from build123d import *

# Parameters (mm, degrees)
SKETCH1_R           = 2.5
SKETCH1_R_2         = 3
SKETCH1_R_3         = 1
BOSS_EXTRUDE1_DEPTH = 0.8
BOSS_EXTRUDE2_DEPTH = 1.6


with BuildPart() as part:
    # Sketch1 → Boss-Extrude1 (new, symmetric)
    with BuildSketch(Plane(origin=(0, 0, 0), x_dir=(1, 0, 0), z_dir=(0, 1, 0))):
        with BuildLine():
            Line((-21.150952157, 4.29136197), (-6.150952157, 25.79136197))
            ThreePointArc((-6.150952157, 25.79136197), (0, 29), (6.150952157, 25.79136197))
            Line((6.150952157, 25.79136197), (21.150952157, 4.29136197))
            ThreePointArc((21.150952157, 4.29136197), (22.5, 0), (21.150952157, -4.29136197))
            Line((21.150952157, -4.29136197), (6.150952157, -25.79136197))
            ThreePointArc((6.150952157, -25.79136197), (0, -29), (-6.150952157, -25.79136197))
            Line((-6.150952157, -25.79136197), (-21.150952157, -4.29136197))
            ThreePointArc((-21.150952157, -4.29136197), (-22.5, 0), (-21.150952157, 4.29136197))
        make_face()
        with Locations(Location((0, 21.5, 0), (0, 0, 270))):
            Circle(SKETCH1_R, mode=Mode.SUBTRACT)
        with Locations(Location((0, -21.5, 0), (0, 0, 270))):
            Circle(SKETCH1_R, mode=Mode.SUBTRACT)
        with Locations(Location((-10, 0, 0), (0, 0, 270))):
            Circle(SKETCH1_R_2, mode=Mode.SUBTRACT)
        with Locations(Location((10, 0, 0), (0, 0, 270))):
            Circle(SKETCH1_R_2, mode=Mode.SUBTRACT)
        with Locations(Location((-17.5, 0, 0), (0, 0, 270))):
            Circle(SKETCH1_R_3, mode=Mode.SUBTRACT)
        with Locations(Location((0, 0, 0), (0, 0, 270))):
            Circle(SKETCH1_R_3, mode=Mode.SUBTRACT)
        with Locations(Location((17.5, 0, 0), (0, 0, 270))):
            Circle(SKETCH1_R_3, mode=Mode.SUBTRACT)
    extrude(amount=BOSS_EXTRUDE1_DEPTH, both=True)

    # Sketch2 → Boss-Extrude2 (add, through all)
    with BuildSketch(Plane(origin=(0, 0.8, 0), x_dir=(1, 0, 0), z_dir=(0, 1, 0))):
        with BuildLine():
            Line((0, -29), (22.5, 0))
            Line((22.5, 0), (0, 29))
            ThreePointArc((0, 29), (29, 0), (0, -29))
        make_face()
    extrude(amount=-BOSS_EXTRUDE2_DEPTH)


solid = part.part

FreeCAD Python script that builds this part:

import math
import FreeCAD as App
import Part
import Sketcher
from FreeCAD import Vector
Q = App.Units.Quantity

doc = App.newDocument("Part")
body = doc.addObject("PartDesign::Body", "Body")

# Sketch on XZ plane
sketch1 = body.newObject("Sketcher::SketchObject", "Sketch")
sketch1.AttachmentSupport = (doc.getObject("XZ_Plane"), [""])
sketch1.MapMode = "FlatFace"
sketch1.addGeometry([
    Part.LineSegment(Vector(-6.2, -25.8, 0), Vector(-21.2, -4.3, 0)),  # 0
    Part.ArcOfCircle(Part.Circle(Vector(-15, 0, 0), Vector(0, 0, 1), 7.5), math.radians(145), math.radians(215)),  # 1
    Part.LineSegment(Vector(-21.2, 4.3, 0), Vector(-6.2, 25.8, 0)),  # 2
    Part.ArcOfCircle(Part.Circle(Vector(0, 21.5, 0), Vector(0, 0, 1), 7.5), math.radians(35), math.radians(145)),  # 3
    Part.LineSegment(Vector(6.2, 25.8, 0), Vector(21.2, 4.3, 0)),  # 4
    Part.ArcOfCircle(Part.Circle(Vector(15, 0, 0), Vector(0, 0, 1), 7.5), math.radians(-35), math.radians(35)),  # 5
    Part.LineSegment(Vector(21.2, -4.3, 0), Vector(6.2, -25.8, 0)),  # 6
    Part.ArcOfCircle(Part.Circle(Vector(0, -21.5, 0), Vector(0, 0, 1), 7.5), math.radians(-145), math.radians(-35)),  # 7
    Part.Circle(Vector(0, 21.5, 0), Vector(0, 0, 1), 2.5),  # 8
    Part.Circle(Vector(17.5, 0, 0), Vector(0, 0, 1), 1),  # 9
    Part.Circle(Vector(10, 0, 0), Vector(0, 0, 1), 3),  # 10
    Part.Circle(Vector(0, 0, 0), Vector(0, 0, 1), 1),  # 11
    Part.Circle(Vector(-10, 0, 0), Vector(0, 0, 1), 3),  # 12
    Part.Circle(Vector(-17.5, 0, 0), Vector(0, 0, 1), 1),  # 13
    Part.Circle(Vector(0, -21.5, 0), Vector(0, 0, 1), 2.5),  # 14
], False)
sketch1.addConstraint([
    Sketcher.Constraint("Tangent", 0, 2, 1, 2),
    Sketcher.Constraint("Tangent", 1, 1, 2, 1),
    Sketcher.Constraint("Tangent", 2, 2, 3, 2),
    Sketcher.Constraint("Tangent", 3, 1, 4, 1),
    Sketcher.Constraint("Tangent", 4, 2, 5, 2),
    Sketcher.Constraint("Tangent", 5, 1, 6, 1),
    Sketcher.Constraint("Tangent", 6, 2, 7, 2),
    Sketcher.Constraint("Tangent", 7, 1, 0, 1),
    Sketcher.Constraint("Coincident", 11, 3, -1, 1),
    Sketcher.Constraint("Coincident", 8, 3, 3, 3),
    Sketcher.Constraint("Coincident", 14, 3, 7, 3),
    Sketcher.Constraint("Equal", 1, 3),
    Sketcher.Constraint("Equal", 3, 5),
    Sketcher.Constraint("Equal", 5, 7),
    Sketcher.Constraint("Equal", 9, 11),
    Sketcher.Constraint("Equal", 10, 12),
    Sketcher.Constraint("Equal", 11, 13),
    Sketcher.Constraint("Equal", 8, 14),
    Sketcher.Constraint("Symmetric", 1, 3, 5, 3, -1, 1),
    Sketcher.Constraint("Symmetric", 3, 3, 7, 3, -1, 1),
    Sketcher.Constraint("Symmetric", 10, 3, 12, 3, -1, 1),
    Sketcher.Constraint("Symmetric", 9, 3, 13, 3, -1, 1),
    Sketcher.Constraint("Symmetric", 2, 2, 3, 1, -2),
    Sketcher.Constraint("PointOnObject", 9, 3, -1),
    Sketcher.Constraint("PointOnObject", 10, 3, -1),
    Sketcher.Constraint("Diameter", 8, Q("5 mm")),
    Sketcher.Constraint("Diameter", 9, Q("2 mm")),
    Sketcher.Constraint("Diameter", 10, Q("6 mm")),
    Sketcher.Constraint("Radius", 1, Q("7.5 mm")),
    Sketcher.Constraint("DistanceX", 1, 3, -1, 1, Q("15 mm")),
    Sketcher.Constraint("DistanceX", -1, 1, 10, 3, Q("10 mm")),
    Sketcher.Constraint("DistanceY", 7, 3, 3, 3, Q("43 mm")),
    Sketcher.Constraint("DistanceX", -1, 1, 9, 3, Q("17.5 mm")),
])
pad1 = body.newObject("PartDesign::Pad", "Pad")
pad1.Profile = sketch1
pad1.Length = 1.6
pad1.Midplane = True

# Sketch on XZ plane
sketch2 = body.newObject("Sketcher::SketchObject", "Sketch001")
sketch2.AttachmentSupport = (doc.getObject("XZ_Plane"), [""])
sketch2.MapMode = "FlatFace"
sketch2.AttachmentOffset = App.Placement(Vector(0, 0, -0.8), App.Rotation())
sketch2.addGeometry([
    Part.LineSegment(Vector(22, 0, 0), Vector(0, 29, 0)),
    Part.ArcOfCircle(Part.Circle(Vector(0, 0, 0), Vector(0, 0, 1), 29), math.radians(-90), math.radians(90)),
    Part.LineSegment(Vector(0, -29, 0), Vector(22, 0, 0)),
], False)
sketch2.addConstraint([
    Sketcher.Constraint("Coincident", 0, 2, 1, 2),
    Sketcher.Constraint("Coincident", 1, 1, 2, 1),
    Sketcher.Constraint("Coincident", 2, 2, 0, 1),
    Sketcher.Constraint("Coincident", 1, 3, -1, 1),
    Sketcher.Constraint("PointOnObject", 0, 2, -2),
    Sketcher.Constraint("PointOnObject", 1, 1, -2),
    Sketcher.Constraint("PointOnObject", 2, 2, -1),
    Sketcher.Constraint("Radius", 1, Q("29 mm")),
    Sketcher.Constraint("DistanceX", -1, 1, 2, 2, Q("22.5 mm")),
])
pad2 = body.newObject("PartDesign::Pad", "Pad001")
pad2.Profile = sketch2
pad2.Length = 1.6

doc.recompute()
